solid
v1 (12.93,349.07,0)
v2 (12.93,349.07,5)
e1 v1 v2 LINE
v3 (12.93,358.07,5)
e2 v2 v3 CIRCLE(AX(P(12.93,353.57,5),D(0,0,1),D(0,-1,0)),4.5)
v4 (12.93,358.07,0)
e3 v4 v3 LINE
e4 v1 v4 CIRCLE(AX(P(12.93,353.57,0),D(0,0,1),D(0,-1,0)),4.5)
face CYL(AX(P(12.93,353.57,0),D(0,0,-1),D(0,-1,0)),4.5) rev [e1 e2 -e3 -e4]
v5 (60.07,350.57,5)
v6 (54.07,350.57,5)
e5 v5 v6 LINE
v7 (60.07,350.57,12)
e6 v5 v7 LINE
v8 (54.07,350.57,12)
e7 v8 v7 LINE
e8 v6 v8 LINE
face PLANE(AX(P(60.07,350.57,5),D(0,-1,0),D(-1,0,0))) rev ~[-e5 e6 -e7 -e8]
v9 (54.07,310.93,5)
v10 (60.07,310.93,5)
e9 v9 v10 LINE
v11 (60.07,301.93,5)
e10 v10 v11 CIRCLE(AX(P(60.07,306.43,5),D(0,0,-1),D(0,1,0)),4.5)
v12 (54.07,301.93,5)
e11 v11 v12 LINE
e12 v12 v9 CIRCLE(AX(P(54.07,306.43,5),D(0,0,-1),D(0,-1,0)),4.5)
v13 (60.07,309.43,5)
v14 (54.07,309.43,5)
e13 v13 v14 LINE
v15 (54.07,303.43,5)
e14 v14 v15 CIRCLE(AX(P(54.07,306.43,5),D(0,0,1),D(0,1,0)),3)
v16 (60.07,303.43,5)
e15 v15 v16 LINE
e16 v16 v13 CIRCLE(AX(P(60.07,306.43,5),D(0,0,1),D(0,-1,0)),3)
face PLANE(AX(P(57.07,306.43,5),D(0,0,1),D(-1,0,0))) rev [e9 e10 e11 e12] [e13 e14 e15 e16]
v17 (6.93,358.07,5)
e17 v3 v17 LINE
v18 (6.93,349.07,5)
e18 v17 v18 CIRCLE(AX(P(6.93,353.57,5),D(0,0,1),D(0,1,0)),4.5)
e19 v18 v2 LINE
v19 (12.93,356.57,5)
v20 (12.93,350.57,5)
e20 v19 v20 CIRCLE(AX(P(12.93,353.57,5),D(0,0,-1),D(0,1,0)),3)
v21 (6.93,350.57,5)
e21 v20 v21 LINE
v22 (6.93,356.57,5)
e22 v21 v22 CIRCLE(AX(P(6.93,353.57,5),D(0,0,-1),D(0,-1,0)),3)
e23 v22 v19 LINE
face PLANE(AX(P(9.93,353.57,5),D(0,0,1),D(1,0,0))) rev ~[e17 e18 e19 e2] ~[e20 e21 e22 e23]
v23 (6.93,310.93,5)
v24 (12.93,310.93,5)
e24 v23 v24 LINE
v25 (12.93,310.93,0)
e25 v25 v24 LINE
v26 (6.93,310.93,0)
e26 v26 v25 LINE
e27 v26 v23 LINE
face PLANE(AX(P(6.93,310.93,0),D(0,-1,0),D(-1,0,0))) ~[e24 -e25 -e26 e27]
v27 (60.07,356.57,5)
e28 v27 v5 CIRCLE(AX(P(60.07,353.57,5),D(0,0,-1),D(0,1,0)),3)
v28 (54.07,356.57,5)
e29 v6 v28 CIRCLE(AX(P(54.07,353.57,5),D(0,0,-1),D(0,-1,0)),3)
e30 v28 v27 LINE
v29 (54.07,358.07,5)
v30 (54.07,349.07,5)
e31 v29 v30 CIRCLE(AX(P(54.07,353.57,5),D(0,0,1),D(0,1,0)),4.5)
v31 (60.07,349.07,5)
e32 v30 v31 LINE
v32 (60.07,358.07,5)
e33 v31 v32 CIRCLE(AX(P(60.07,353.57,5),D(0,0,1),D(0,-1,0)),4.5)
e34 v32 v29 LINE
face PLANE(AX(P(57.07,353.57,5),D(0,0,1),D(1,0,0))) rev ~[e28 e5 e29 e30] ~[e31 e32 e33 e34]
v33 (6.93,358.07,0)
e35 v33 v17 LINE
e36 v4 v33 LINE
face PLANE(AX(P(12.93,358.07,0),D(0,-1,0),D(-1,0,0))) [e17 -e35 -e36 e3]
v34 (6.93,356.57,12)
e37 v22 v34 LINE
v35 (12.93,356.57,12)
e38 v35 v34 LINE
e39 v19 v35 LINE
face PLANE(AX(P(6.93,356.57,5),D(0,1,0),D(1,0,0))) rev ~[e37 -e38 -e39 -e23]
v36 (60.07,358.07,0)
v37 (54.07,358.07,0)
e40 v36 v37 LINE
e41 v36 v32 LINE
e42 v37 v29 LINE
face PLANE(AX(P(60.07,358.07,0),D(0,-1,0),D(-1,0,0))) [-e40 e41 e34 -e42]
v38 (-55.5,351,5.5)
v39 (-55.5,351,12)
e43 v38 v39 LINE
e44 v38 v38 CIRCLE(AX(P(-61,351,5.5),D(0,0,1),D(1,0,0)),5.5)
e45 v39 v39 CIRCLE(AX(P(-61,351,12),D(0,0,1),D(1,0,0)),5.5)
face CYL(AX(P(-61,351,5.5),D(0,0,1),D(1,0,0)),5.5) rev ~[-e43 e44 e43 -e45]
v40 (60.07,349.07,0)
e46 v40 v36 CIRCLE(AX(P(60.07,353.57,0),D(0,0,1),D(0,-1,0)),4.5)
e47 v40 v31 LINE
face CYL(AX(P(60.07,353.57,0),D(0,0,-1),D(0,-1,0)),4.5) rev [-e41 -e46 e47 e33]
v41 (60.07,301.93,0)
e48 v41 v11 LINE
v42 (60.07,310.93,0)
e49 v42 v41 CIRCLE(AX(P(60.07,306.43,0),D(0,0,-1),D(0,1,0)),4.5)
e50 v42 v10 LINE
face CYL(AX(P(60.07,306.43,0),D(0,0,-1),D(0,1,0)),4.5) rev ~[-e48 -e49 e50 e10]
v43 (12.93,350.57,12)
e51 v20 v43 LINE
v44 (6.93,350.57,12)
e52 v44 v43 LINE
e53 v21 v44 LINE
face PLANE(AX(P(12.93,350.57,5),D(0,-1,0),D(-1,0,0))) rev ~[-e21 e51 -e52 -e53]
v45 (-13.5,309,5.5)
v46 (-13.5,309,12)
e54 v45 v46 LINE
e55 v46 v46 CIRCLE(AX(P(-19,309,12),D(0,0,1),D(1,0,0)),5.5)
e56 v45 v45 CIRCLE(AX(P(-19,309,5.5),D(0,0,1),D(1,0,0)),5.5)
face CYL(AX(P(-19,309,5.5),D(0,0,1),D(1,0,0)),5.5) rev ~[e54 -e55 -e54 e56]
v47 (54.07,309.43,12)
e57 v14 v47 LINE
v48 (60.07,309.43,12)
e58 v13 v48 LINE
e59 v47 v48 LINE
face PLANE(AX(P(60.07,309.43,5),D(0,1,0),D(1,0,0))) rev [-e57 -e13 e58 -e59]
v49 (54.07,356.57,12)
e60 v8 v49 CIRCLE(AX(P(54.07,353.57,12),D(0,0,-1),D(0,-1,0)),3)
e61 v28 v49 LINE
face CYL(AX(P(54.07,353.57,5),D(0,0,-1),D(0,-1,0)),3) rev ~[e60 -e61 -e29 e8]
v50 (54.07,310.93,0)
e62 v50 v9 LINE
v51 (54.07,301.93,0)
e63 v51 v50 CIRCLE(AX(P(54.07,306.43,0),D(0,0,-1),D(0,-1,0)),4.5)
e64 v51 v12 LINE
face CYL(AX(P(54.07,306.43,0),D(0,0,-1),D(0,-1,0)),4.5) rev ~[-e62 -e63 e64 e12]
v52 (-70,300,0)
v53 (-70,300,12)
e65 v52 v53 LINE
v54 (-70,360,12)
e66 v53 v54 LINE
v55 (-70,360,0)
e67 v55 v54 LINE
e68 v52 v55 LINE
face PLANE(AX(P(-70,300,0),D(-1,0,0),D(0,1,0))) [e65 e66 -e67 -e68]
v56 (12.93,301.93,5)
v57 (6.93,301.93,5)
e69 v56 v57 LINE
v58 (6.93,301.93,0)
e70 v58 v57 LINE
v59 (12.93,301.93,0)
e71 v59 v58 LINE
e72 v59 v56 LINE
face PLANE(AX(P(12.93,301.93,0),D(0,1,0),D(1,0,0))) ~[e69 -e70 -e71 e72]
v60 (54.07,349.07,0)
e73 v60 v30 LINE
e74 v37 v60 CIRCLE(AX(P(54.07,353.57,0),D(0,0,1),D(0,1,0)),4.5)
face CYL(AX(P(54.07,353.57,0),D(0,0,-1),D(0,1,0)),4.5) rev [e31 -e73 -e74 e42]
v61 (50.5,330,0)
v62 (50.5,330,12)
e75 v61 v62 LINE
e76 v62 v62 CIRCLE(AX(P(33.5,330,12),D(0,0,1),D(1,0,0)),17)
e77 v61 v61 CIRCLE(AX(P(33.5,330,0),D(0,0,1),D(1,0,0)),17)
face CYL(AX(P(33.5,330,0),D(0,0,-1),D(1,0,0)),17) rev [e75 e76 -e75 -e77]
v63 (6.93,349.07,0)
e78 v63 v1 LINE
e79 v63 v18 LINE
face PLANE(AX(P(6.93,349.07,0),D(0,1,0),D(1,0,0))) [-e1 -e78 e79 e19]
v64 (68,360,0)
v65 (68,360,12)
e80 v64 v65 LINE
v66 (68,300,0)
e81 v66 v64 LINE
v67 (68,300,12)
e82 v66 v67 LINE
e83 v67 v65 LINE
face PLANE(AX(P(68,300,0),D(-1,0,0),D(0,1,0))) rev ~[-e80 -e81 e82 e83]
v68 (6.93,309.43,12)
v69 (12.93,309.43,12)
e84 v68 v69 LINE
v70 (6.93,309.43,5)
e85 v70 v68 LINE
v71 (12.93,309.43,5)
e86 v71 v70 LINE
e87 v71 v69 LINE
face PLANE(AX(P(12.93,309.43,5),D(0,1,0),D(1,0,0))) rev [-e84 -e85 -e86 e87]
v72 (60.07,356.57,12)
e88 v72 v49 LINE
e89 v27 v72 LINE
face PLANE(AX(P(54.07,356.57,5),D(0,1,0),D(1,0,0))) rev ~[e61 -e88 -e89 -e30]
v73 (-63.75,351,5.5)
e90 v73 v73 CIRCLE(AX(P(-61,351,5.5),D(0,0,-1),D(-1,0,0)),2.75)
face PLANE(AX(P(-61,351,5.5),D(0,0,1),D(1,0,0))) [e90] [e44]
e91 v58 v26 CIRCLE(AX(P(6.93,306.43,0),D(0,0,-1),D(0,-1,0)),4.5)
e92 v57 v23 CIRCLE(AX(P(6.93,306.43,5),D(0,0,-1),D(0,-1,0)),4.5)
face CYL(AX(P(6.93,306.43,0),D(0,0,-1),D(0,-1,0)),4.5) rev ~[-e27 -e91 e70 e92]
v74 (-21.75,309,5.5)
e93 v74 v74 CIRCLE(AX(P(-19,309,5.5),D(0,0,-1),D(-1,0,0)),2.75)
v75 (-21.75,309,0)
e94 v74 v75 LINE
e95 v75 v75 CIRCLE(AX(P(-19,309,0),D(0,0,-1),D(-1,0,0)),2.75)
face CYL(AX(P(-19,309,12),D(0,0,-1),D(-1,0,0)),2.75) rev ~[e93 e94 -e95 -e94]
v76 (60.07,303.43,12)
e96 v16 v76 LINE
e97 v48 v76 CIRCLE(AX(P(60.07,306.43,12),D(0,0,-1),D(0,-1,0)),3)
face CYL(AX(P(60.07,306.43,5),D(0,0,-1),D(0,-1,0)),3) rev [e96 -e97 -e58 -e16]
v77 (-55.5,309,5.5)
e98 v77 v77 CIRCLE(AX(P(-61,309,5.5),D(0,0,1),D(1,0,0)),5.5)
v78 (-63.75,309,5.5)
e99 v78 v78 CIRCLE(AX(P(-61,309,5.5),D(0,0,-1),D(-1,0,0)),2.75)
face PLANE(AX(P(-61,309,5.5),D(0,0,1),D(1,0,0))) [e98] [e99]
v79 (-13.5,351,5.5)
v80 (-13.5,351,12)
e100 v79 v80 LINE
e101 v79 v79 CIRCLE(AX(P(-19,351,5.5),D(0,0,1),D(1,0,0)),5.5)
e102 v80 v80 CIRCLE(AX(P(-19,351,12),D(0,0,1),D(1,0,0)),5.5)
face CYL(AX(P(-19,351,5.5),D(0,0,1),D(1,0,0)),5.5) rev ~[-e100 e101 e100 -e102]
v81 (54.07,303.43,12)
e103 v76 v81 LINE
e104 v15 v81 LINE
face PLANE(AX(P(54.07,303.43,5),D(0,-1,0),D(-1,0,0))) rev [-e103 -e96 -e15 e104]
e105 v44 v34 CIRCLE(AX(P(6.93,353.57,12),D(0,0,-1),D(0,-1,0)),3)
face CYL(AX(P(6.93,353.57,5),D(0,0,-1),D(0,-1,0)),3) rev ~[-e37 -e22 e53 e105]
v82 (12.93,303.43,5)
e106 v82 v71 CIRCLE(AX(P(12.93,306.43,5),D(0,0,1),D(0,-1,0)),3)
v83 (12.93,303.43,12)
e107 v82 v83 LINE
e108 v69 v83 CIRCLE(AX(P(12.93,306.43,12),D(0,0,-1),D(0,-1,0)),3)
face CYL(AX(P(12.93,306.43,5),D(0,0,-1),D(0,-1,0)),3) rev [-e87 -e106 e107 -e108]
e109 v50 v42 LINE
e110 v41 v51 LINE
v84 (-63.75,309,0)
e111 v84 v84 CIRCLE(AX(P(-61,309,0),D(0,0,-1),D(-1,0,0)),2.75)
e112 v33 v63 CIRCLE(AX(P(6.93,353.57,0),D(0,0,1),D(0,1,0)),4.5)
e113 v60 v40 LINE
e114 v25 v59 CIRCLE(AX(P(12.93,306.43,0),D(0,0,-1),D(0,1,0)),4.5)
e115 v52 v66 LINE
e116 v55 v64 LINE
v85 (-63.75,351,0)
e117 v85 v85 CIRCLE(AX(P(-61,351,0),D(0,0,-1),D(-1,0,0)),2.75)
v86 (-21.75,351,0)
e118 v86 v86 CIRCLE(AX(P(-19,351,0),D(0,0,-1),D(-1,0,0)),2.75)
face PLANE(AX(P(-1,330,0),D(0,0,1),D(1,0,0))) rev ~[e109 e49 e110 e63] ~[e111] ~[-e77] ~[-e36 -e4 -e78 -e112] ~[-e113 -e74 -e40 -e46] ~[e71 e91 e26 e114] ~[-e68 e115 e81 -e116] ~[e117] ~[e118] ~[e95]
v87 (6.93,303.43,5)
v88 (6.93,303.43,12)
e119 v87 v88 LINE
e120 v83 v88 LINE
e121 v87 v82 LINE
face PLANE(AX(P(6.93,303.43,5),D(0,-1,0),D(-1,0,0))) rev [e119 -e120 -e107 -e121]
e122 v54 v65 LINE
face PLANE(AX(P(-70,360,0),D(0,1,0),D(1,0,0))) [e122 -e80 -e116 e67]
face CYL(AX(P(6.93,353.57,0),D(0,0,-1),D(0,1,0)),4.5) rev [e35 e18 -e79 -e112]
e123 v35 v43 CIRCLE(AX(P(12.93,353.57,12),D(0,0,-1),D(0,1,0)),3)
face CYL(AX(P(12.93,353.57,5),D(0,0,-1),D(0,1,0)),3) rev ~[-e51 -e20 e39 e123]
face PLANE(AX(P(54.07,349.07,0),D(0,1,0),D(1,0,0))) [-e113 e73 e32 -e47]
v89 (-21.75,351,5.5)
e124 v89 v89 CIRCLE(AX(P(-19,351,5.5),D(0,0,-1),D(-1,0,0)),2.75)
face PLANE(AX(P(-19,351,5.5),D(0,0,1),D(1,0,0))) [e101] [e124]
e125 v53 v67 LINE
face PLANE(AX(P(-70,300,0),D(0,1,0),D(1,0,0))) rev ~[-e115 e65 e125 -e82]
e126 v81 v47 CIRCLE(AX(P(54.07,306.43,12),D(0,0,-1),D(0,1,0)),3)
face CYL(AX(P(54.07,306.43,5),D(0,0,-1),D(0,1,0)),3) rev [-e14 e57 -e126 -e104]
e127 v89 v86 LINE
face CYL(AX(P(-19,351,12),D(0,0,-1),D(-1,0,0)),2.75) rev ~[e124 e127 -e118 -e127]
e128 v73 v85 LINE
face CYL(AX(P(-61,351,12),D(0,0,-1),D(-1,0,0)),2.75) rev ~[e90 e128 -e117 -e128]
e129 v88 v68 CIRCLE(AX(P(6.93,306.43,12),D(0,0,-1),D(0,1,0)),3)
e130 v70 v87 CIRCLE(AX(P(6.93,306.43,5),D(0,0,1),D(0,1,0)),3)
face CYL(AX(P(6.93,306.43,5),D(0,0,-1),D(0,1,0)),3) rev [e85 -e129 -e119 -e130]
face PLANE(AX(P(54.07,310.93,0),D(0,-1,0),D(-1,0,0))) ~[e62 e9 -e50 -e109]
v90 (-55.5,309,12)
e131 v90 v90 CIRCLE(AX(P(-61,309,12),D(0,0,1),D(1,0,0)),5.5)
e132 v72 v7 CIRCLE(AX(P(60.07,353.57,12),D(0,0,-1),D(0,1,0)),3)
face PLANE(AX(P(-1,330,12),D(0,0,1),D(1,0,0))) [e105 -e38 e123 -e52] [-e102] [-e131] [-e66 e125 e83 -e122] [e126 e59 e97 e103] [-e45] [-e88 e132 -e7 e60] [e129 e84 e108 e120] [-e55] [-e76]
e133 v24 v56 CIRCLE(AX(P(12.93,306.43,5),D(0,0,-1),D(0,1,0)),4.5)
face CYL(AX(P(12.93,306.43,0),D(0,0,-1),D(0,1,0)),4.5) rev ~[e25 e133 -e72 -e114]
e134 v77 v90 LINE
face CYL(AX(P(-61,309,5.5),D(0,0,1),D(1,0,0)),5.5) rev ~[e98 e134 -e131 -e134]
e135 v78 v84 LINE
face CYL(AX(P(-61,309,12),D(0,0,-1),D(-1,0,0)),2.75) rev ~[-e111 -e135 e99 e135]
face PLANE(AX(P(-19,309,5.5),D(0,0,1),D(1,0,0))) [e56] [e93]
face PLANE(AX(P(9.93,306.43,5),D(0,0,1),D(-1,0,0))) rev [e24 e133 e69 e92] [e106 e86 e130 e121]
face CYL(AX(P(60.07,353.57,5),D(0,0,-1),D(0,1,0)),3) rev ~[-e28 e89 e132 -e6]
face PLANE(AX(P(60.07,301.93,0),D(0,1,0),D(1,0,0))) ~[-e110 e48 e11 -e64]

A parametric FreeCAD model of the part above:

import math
import FreeCAD as App
import Part
import Sketcher

V = App.Vector

doc = App.newDocument("Part")
body = doc.addObject("PartDesign::Body", "Body")

# Sketch on XY plane
sketch1 = doc.addObject("Sketcher::SketchObject", "Sketch")
body.addObject(sketch1)
sketch1.AttachmentSupport = (doc.XY_Plane, [""])
sketch1.MapMode = "FlatFace"
sketch1.addGeometry(Part.LineSegment(V(-70, 360, 0), V(-70, 300, 0)), False)
sketch1.addGeometry(Part.LineSegment(V(-70, 300, 0), V(68, 300, 0)), False)
sketch1.addGeometry(Part.LineSegment(V(68, 300, 0), V(68, 360, 0)), False)
sketch1.addGeometry(Part.LineSegment(V(68, 360, 0), V(-70, 360, 0)), False)
sketch1.addGeometry(Part.Circle(V(33.5, 330, 0), V(0, 0, 1), 17), False)
sketch1.addConstraint(Sketcher.Constraint("Coincident", 0, 2, 1, 1))
sketch1.addConstraint(Sketcher.Constraint("Coincident", 1, 2, 2, 1))
sketch1.addConstraint(Sketcher.Constraint("Coincident", 2, 2, 3, 1))
sketch1.addConstraint(Sketcher.Constraint("Coincident", 3, 2, 0, 1))
sketch1.addConstraint(Sketcher.Constraint("Vertical", 0))
sketch1.addConstraint(Sketcher.Constraint("Horizontal", 1))
sketch1.addConstraint(Sketcher.Constraint("Vertical", 2))
sketch1.addConstraint(Sketcher.Constraint("Horizontal", 3))
sketch1.addConstraint(Sketcher.Constraint("Diameter", 4, 34.0))
sketch1.addConstraint(Sketcher.Constraint("DistanceX", 1, 1, 1, 2, 138.0))
sketch1.addConstraint(Sketcher.Constraint("DistanceY", 0, 2, 0, 1, 60.0))
sketch1.addConstraint(Sketcher.Constraint("DistanceY", -1, 1, 4, 3, 330.0))
sketch1.addConstraint(Sketcher.Constraint("DistanceX", 0, 2, -1, 1, 70.0))
sketch1.addConstraint(Sketcher.Constraint("DistanceY", -1, 1, 0, 2, 300.0))
sketch1.addConstraint(Sketcher.Constraint("DistanceX", -1, 1, 4, 3, 33.5))
pad1 = doc.addObject("PartDesign::Pad", "Pad")
body.addObject(pad1)
pad1.Profile = sketch1
pad1.Length = 12

# Sketch on XY plane
sketch2 = doc.addObject("Sketcher::SketchObject", "Sketch001")
body.addObject(sketch2)
sketch2.AttachmentSupport = (doc.XY_Plane, [""])
sketch2.MapMode = "FlatFace"
sketch2.AttachmentOffset = App.Placement(V(0, 0, 12), App.Rotation())
sketch2.addGeometry(Part.Circle(V(-61, 351, 0), V(0, 0, 1), 2.75), False)
sketch2.addGeometry(Part.Circle(V(-19, 351, 0), V(0, 0, 1), 2.75), False)
sketch2.addGeometry(Part.Circle(V(-61, 309, 0), V(0, 0, 1), 2.75), False)
sketch2.addGeometry(Part.Circle(V(-19, 309, 0), V(0, 0, 1), 2.75), False)
sketch2.addConstraint(Sketcher.Constraint("Equal", 0, 1))
sketch2.addConstraint(Sketcher.Constraint("Equal", 1, 2))
sketch2.addConstraint(Sketcher.Constraint("Equal", 2, 3))
sketch2.addConstraint(Sketcher.Constraint("Horizontal", 0, 3, 1, 3))
sketch2.addConstraint(Sketcher.Constraint("Horizontal", 2, 3, 3, 3))
sketch2.addConstraint(Sketcher.Constraint("Vertical", 0, 3, 2, 3))
sketch2.addConstraint(Sketcher.Constraint("Vertical", 1, 3, 3, 3))
sketch2.addConstraint(Sketcher.Constraint("Diameter", 0, 5.5))
sketch2.addConstraint(Sketcher.Constraint("DistanceX", 0, 3, -1, 1, 61.0))
sketch2.addConstraint(Sketcher.Constraint("DistanceY", -1, 1, 0, 3, 351.0))
sketch2.addConstraint(Sketcher.Constraint("DistanceX", 1, 3, -1, 1, 19.0))
sketch2.addConstraint(Sketcher.Constraint("DistanceY", -1, 1, 2, 3, 309.0))
doc.recompute()
hole = doc.addObject("PartDesign::Hole", "Hole")
body.addObject(hole)
hole.Profile = sketch2
hole.ThreadType = "None"
hole.Diameter = 5.5
hole.DepthType = "ThroughAll"
hole.HoleCutType = "Counterbore"
hole.HoleCutDiameter = 11
hole.HoleCutDepth = 6.5

# Sketch on XY plane
sketch3 = doc.addObject("Sketcher::SketchObject", "Sketch002")
body.addObject(sketch3)
sketch3.AttachmentSupport = (doc.XY_Plane, [""])
sketch3.MapMode = "FlatFace"
sketch3.addGeometry(Part.LineSegment(V(6.93, 358.07, 0), V(12.93, 358.07, 0)), False)
sketch3.addGeometry(Part.ArcOfCircle(Part.Circle(V(12.93, 353.57, 0), V(0, 0, 1), 4.5), math.radians(-90), math.radians(90)), False)
sketch3.addGeometry(Part.LineSegment(V(12.93, 349.07, 0), V(6.93, 349.07, 0)), False)
sketch3.addGeometry(Part.ArcOfCircle(Part.Circle(V(6.93, 353.57, 0), V(0, 0, 1), 4.5), math.radians(90), math.radians(270)), False)
sketch3.addGeometry(Part.LineSegment(V(54.07, 358.07, 0), V(60.07, 358.07, 0)), False)
sketch3.addGeometry(Part.ArcOfCircle(Part.Circle(V(60.07, 353.57, 0), V(0, 0, 1), 4.5), math.radians(-90), math.radians(90)), False)
sketch3.addGeometry(Part.LineSegment(V(60.07, 349.07, 0), V(54.07, 349.07, 0)), False)
sketch3.addGeometry(Part.ArcOfCircle(Part.Circle(V(54.07, 353.57, 0), V(0, 0, 1), 4.5), math.radians(90), math.radians(270)), False)
sketch3.addConstraint(Sketcher.Constraint("Tangent", 0, 2, 1, 2))
sketch3.addConstraint(Sketcher.Constraint("Tangent", 1, 1, 2, 1))
sketch3.addConstraint(Sketcher.Constraint("Tangent", 2, 2, 3, 2))
sketch3.addConstraint(Sketcher.Constraint("Tangent", 3, 1, 0, 1))
sketch3.addConstraint(Sketcher.Constraint("Tangent", 4, 2, 5, 2))
sketch3.addConstraint(Sketcher.Constraint("Tangent", 5, 1, 6, 1))
sketch3.addConstraint(Sketcher.Constraint("Tangent", 6, 2, 7, 2))
sketch3.addConstraint(Sketcher.Constraint("Tangent", 7, 1, 4, 1))
sketch3.addConstraint(Sketcher.Constraint("Horizontal", 0))
sketch3.addConstraint(Sketcher.Constraint("Horizontal", 2))
sketch3.addConstraint(Sketcher.Constraint("Horizontal", 4))
sketch3.addConstraint(Sketcher.Constraint("Horizontal", 6))
sketch3.addConstraint(Sketcher.Constraint("Equal", 3, 5))
sketch3.addConstraint(Sketcher.Constraint("Horizontal", 3, 3, 5, 3))
sketch3.addConstraint(Sketcher.Constraint("Equal", 2, 4))
sketch3.addConstraint(Sketcher.Constraint("Radius", 1, 4.5))
sketch3.addConstraint(Sketcher.Constraint("DistanceX", 0, 1, 0, 2, 6.0))
sketch3.addConstraint(Sketcher.Constraint("DistanceX", -1, 1, 1, 3, 12.93))
sketch3.addConstraint(Sketcher.Constraint("DistanceY", -1, 1, 1, 3, 353.57))
sketch3.addConstraint(Sketcher.Constraint("DistanceX", -1, 1, 5, 3, 60.07))
pocket1 = doc.addObject("PartDesign::Pocket", "Pocket")
body.addObject(pocket1)
pocket1.Profile = sketch3
pocket1.Length = 5
pocket1.Reversed = True

# Sketch on XY plane
sketch4 = doc.addObject("Sketcher::SketchObject", "Sketch003")
body.addObject(sketch4)
sketch4.AttachmentSupport = (doc.XY_Plane, [""])
sketch4.MapMode = "FlatFace"
sketch4.AttachmentOffset = App.Placement(V(0, 0, 5), App.Rotation())
sketch4.addGeometry(Part.LineSegment(V(60.07, 350.57, 0), V(54.07, 350.57, 0)), False)
sketch4.addGeometry(Part.ArcOfCircle(Part.Circle(V(54.07, 353.57, 0), V(0, 0, 1), 3), math.radians(90), math.radians(270)), False)
sketch4.addGeometry(Part.LineSegment(V(54.07, 356.57, 0), V(60.07, 356.57, 0)), False)
sketch4.addGeometry(Part.ArcOfCircle(Part.Circle(V(60.07, 353.57, 0), V(0, 0, 1), 3), math.radians(-90), math.radians(90)), False)
sketch4.addGeometry(Part.LineSegment(V(12.93, 350.57, 0), V(6.93, 350.57, 0)), False)
sketch4.addGeometry(Part.ArcOfCircle(Part.Circle(V(6.93, 353.57, 0), V(0, 0, 1), 3), math.radians(90), math.radians(270)), False)
sketch4.addGeometry(Part.LineSegment(V(6.93, 356.57, 0), V(12.93, 356.57, 0)), False)
sketch4.addGeometry(Part.ArcOfCircle(Part.Circle(V(12.93, 353.57, 0), V(0, 0, 1), 3), math.radians(-90), math.radians(90)), False)
sketch4.addConstraint(Sketcher.Constraint("Tangent", 0, 2, 1, 2))
sketch4.addConstraint(Sketcher.Constraint("Tangent", 1, 1, 2, 1))
sketch4.addConstraint(Sketcher.Constraint("Tangent", 2, 2, 3, 2))
sketch4.addConstraint(Sketcher.Constraint("Tangent", 3, 1, 0, 1))
sketch4.addConstraint(Sketcher.Constraint("Tangent", 4, 2, 5, 2))
sketch4.addConstraint(Sketcher.Constraint("Tangent", 5, 1, 6, 1))
sketch4.addConstraint(Sketcher.Constraint("Tangent", 6, 2, 7, 2))
sketch4.addConstraint(Sketcher.Constraint("Tangent", 7, 1, 4, 1))
sketch4.addConstraint(Sketcher.Constraint("Horizontal", 0))
sketch4.addConstraint(Sketcher.Constraint("Horizontal", 2))
sketch4.addConstraint(Sketcher.Constraint("Horizontal", 4))
sketch4.addConstraint(Sketcher.Constraint("Horizontal", 6))
sketch4.addConstraint(Sketcher.Constraint("Equal", 3, 5))
sketch4.addConstraint(Sketcher.Constraint("Horizontal", 3, 3, 5, 3))
sketch4.addConstraint(Sketcher.Constraint("Equal", 2, 4))
sketch4.addConstraint(Sketcher.Constraint("Radius", 1, 3.0))
sketch4.addConstraint(Sketcher.Constraint("DistanceX", 0, 2, 0, 1, 6.0))
sketch4.addConstraint(Sketcher.Constraint("DistanceX", -1, 1, 1, 3, 54.07))
sketch4.addConstraint(Sketcher.Constraint("DistanceY", -1, 1, 1, 3, 353.57))
sketch4.addConstraint(Sketcher.Constraint("DistanceX", -1, 1, 5, 3, 6.93))
pocket2 = doc.addObject("PartDesign::Pocket", "Pocket001")
body.addObject(pocket2)
pocket2.Profile = sketch4
pocket2.Type = "ThroughAll"
pocket2.Reversed = True
doc.recompute()

datumplane = doc.addObject("PartDesign::Plane", "DatumPlane")
body.addObject(datumplane)
datumplane.AttachmentSupport = (doc.XZ_Plane, [""])
datumplane.MapMode = "FlatFace"
datumplane.AttachmentOffset = App.Placement(V(0, 0, -330), App.Rotation())
mirrored = doc.addObject("PartDesign::Mirrored", "Mirrored")
body.addObject(mirrored)
mirrored.Originals = [pocket1, pocket2]
mirrored.MirrorPlane = (datumplane, [""])
body.Tip = mirrored

doc.recompute()
